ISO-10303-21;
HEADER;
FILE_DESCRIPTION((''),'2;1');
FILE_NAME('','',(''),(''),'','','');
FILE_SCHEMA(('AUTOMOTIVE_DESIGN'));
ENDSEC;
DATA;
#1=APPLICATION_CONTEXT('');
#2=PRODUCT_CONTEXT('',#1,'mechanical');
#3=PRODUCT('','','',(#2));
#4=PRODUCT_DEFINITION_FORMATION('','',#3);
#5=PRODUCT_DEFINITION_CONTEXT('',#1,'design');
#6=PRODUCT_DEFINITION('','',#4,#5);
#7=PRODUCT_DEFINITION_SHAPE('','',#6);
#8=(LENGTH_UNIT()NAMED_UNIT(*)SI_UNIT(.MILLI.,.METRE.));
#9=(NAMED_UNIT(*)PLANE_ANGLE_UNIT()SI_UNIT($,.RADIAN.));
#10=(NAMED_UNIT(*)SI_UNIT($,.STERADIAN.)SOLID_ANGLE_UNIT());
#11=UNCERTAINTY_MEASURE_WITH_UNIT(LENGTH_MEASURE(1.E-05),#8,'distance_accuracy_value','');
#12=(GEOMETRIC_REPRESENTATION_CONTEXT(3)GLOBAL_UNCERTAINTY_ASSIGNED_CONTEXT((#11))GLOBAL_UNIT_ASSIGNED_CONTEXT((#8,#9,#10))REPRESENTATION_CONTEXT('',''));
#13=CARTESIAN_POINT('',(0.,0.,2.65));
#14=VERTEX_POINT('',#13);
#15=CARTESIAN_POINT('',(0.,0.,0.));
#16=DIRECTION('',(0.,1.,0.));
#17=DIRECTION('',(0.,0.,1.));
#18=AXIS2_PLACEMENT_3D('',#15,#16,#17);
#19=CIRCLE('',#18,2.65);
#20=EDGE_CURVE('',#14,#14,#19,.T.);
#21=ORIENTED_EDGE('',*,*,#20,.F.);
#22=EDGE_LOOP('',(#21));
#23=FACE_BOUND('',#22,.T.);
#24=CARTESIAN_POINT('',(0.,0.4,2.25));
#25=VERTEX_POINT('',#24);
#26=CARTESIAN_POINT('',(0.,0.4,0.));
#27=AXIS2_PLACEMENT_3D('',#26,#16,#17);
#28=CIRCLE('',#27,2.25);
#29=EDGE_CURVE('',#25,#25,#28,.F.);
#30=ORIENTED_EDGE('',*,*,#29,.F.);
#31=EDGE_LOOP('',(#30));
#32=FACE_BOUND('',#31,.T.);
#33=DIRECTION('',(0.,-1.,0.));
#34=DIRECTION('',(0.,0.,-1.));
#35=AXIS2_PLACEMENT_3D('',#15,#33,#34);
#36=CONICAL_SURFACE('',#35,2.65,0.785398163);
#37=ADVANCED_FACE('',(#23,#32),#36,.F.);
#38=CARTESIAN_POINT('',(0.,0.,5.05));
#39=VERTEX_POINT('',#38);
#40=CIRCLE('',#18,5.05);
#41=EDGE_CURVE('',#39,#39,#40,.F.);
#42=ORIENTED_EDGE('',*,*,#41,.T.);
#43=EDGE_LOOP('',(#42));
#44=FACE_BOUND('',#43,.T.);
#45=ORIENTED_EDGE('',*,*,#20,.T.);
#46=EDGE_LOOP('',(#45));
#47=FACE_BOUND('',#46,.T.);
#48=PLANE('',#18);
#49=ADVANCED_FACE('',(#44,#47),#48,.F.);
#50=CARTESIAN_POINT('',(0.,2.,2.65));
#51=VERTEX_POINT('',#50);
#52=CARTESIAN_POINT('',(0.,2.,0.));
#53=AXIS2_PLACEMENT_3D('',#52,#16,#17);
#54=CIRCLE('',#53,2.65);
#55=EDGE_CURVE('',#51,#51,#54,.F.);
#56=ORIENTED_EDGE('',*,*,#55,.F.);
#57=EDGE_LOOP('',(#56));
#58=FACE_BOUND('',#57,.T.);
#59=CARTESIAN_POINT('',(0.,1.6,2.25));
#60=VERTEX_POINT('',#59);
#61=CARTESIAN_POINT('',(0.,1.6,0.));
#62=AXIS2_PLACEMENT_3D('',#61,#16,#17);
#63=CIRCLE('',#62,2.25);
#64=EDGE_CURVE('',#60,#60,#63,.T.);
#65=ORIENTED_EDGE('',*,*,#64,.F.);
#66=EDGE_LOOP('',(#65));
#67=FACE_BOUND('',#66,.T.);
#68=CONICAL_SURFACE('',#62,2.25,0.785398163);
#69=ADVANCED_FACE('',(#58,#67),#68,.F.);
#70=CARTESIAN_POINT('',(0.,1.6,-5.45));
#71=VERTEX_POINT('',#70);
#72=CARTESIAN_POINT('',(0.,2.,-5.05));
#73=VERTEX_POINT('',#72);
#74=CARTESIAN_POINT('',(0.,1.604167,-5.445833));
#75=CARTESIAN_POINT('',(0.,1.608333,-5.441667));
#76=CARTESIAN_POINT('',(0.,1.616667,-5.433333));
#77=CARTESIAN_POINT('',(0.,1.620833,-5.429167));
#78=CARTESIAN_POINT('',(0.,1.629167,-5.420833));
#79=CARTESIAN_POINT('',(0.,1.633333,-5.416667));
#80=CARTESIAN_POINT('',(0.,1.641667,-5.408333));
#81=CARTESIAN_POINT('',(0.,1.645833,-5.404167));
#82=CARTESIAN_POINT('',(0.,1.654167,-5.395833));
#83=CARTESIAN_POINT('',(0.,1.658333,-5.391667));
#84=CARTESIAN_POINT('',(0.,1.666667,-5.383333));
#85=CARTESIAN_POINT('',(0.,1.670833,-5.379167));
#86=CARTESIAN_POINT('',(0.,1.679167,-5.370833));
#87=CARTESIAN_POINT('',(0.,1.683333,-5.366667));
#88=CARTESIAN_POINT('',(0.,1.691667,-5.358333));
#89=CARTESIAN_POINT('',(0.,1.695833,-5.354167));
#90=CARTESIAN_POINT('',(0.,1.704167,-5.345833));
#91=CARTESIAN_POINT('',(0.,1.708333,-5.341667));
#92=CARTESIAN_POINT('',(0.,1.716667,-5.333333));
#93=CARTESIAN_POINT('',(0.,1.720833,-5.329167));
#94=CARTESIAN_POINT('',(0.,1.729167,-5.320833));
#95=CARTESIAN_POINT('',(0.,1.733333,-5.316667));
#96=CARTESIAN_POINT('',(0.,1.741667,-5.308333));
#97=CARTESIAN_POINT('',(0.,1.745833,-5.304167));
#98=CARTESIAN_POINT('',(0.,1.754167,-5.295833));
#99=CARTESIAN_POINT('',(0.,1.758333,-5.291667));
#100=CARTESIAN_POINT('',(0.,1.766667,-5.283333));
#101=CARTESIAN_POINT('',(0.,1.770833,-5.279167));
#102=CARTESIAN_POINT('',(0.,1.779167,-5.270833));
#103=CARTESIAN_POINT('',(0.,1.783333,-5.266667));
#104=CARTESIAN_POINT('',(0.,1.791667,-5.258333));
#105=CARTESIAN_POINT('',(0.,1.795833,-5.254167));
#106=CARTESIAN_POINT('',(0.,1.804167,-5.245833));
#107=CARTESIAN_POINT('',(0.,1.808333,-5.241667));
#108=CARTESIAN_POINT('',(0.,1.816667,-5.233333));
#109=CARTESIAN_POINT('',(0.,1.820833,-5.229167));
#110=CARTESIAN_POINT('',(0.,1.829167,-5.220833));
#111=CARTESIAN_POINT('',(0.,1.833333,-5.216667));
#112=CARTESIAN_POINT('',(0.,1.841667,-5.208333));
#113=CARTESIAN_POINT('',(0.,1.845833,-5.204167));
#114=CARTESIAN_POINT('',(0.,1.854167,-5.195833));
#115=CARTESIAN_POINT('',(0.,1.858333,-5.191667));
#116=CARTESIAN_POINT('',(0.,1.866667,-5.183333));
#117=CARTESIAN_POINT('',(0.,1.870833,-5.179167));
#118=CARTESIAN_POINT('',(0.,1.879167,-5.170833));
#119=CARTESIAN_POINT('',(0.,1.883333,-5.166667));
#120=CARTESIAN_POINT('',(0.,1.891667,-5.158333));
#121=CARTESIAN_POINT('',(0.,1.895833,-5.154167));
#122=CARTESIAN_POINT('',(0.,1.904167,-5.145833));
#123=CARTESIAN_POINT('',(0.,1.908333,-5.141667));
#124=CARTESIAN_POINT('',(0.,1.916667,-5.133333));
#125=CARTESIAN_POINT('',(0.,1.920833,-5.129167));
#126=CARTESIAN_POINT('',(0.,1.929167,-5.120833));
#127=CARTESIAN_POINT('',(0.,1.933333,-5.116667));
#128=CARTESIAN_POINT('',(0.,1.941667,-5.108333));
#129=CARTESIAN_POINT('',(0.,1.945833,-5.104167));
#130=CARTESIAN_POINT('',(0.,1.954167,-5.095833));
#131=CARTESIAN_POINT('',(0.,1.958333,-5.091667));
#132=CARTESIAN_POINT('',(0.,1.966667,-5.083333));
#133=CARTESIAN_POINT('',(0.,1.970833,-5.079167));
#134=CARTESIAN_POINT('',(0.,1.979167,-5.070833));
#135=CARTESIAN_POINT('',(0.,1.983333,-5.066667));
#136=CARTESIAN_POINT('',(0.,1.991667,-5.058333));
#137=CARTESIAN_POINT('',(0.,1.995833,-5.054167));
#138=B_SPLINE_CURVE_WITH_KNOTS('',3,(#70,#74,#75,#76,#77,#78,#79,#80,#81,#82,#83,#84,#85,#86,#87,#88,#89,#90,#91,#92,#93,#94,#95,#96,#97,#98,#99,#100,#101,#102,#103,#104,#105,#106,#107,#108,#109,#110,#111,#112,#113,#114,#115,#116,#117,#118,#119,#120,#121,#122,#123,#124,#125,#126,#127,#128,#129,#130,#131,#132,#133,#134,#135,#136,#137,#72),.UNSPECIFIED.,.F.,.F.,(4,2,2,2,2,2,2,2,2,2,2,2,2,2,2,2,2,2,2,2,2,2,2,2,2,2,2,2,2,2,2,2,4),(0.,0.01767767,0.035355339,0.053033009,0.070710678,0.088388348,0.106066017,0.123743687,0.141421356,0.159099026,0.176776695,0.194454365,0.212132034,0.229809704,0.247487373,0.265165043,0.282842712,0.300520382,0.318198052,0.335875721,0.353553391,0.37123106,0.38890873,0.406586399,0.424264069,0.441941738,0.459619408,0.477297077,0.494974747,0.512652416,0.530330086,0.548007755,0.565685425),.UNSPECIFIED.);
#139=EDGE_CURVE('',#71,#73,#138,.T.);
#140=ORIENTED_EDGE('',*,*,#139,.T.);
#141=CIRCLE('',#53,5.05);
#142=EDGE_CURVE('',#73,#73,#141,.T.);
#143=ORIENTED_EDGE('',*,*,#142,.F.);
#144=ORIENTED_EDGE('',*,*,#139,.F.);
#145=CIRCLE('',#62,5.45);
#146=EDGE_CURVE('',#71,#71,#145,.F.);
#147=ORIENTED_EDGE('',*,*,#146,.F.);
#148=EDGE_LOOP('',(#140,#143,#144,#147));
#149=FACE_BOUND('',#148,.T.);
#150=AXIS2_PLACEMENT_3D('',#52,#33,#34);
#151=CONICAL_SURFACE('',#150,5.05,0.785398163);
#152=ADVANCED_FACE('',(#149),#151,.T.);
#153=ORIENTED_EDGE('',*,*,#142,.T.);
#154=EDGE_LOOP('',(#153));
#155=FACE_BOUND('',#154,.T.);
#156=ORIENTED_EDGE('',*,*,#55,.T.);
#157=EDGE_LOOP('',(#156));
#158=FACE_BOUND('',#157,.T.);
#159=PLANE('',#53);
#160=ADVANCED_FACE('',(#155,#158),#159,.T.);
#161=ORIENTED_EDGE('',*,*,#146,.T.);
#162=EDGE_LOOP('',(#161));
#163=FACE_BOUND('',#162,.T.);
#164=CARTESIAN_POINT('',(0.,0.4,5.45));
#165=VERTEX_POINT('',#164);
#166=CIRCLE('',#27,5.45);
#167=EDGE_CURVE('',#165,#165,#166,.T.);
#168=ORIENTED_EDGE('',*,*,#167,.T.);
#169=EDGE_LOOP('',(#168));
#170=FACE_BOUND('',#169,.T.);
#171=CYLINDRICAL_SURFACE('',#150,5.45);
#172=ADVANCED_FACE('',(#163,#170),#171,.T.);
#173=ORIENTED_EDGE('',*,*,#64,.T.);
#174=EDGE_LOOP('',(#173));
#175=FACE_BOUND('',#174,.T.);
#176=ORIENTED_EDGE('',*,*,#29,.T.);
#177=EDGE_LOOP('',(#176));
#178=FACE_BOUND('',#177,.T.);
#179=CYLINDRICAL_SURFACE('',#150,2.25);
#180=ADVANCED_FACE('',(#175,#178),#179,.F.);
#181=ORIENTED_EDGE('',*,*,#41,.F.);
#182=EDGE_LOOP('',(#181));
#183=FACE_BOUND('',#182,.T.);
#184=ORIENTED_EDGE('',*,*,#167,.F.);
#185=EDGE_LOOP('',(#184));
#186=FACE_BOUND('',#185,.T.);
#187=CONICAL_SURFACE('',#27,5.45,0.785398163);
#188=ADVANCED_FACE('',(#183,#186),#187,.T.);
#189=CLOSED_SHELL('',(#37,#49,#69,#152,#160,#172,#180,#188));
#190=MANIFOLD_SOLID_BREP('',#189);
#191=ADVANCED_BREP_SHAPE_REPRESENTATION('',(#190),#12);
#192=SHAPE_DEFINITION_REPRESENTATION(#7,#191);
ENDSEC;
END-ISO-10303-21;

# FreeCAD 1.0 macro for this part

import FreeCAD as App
import Part
import Sketcher
from FreeCAD import Vector
Q = App.Units.Quantity


def edges_at(feature, points):
    """Names of the edges that pass closest to the given points."""
    edges = feature.Shape.Edges
    near = lambda p: min(range(len(edges)), key=lambda i: edges[i].distToShape(Part.Vertex(*p))[0])
    return sorted({f"Edge{near(p) + 1}" for p in points})

doc = App.newDocument("Part")
body = doc.addObject("PartDesign::Body", "Body")

# Sketch on XZ plane
sketch1 = doc.addObject("Sketcher::SketchObject", "Sketch")
body.addObject(sketch1)
sketch1.AttachmentSupport = (doc.XZ_Plane, [""])
sketch1.MapMode = "FlatFace"
sketch1.addGeometry([
    Part.Circle(Vector(0, 0, 0), Vector(0, 0, 1), 5.5),
    Part.Circle(Vector(0, 0, 0), Vector(0, 0, 1), 2.2),
], False)
sketch1.addConstraint([
    Sketcher.Constraint("Coincident", 0, 3, -1, 1),
    Sketcher.Constraint("Coincident", 1, 3, -1, 1),
    Sketcher.Constraint("Diameter", 0, Q("10.9 mm")),
    Sketcher.Constraint("Diameter", 1, Q("4.5 mm")),
])
pad1 = doc.addObject("PartDesign::Pad", "Pad")
body.addObject(pad1)
pad1.Profile = sketch1
pad1.Length = 2
pad1.Reversed = True
doc.recompute()

chamfer = doc.addObject("PartDesign::Chamfer", "Chamfer")
body.addObject(chamfer)
chamfer.Base = (pad1, edges_at(pad1, [
    (0, 0, -5.45),
    (0, 2, -5.45),
    (0, 0, -2.25),
    (0, 2, -2.25),
]))
chamfer.Size = 0.4

doc.recompute()
